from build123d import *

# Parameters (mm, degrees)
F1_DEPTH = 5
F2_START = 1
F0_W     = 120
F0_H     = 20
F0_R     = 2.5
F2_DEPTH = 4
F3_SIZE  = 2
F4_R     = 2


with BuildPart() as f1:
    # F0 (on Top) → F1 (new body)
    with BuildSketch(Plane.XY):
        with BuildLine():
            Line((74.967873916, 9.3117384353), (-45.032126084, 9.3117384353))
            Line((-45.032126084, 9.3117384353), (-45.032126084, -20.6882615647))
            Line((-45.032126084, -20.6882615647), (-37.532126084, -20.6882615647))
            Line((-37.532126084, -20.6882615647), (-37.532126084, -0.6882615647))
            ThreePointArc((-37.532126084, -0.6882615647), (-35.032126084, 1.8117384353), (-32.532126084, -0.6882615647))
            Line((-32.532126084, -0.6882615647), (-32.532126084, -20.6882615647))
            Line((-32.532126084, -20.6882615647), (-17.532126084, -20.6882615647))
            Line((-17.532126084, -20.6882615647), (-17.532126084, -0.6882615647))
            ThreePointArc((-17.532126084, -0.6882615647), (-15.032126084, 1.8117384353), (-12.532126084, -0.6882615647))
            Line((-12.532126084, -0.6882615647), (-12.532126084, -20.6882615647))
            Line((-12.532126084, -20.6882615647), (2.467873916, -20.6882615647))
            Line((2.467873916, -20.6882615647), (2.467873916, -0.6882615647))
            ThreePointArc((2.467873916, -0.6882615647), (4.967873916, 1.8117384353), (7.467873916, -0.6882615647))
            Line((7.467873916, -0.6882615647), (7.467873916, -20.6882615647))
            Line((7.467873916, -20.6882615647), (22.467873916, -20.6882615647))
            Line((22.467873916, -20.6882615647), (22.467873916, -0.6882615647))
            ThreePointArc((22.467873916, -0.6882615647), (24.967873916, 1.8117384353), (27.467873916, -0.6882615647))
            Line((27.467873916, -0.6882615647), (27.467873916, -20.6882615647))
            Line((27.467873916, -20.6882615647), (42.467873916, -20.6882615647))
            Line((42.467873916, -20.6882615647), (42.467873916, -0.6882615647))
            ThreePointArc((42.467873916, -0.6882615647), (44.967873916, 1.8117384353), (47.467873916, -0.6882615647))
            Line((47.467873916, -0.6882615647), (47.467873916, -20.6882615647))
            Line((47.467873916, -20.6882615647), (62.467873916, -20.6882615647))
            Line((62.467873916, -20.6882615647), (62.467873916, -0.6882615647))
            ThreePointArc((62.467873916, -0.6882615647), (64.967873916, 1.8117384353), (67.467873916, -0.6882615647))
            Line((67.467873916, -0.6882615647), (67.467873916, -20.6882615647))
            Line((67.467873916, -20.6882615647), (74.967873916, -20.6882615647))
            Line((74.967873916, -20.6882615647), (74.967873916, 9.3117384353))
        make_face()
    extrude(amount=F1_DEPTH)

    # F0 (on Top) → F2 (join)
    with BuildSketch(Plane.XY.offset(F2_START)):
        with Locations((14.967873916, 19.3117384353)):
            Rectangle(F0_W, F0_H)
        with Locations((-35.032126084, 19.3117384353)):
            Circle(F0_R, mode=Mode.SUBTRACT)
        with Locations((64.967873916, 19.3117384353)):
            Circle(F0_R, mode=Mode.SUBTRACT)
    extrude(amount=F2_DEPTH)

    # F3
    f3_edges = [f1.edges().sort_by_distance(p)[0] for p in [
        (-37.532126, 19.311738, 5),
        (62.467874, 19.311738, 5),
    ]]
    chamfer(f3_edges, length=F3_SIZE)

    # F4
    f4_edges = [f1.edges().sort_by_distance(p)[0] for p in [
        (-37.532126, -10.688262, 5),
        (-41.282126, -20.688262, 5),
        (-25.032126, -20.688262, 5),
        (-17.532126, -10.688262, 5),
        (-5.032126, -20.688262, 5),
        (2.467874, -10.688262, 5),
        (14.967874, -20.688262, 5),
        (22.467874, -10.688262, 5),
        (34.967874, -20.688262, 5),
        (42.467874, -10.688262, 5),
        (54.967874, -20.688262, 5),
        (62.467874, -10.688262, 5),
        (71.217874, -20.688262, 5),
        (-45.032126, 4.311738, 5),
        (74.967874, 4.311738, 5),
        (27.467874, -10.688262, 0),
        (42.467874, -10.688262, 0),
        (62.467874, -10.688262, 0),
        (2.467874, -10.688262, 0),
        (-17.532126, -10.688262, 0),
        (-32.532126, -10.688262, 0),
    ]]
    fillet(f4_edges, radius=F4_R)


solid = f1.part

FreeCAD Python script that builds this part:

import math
import FreeCAD as App
import Part
import Sketcher


def edges_at(feature, points):
    """Names of the edges that pass closest to the given points."""
    edges = feature.Shape.Edges
    near = lambda p: min(range(len(edges)), key=lambda i: edges[i].distToShape(Part.Vertex(*p))[0])
    return sorted({f"Edge{near(p) + 1}" for p in points})


def add_polygon(sketch, points):
    """Adds a closed chain of lines whose ends are joined by coincident constraints."""
    first, n = sketch.GeometryCount, len(points)
    for a, b in zip(points, points[1:] + points[:1]):
        sketch.addGeometry(Part.LineSegment(App.Vector(*a, 0), App.Vector(*b, 0)), False)
    for i in range(n):
        sketch.addConstraint(Sketcher.Constraint("Coincident", first + i, 2, first + (i + 1) % n, 1))

doc = App.newDocument("Part")
body = doc.addObject("PartDesign::Body", "Body")

sketch1 = doc.addObject("Sketcher::SketchObject", "Sketch")
body.addObject(sketch1)
sketch1.AttachmentSupport = (doc.XY_Plane, [""])
sketch1.MapMode = "FlatFace"
sketch1.addGeometry([
    Part.LineSegment(App.Vector(74.967874, 9.311738, 0), App.Vector(-45.032126, 9.311738, 0)),
    Part.LineSegment(App.Vector(-45.032126, 9.311738, 0), App.Vector(-45.032126, -20.688262, 0)),
    Part.LineSegment(App.Vector(-45.032126, -20.688262, 0), App.Vector(-37.532126, -20.688262, 0)),
    Part.LineSegment(App.Vector(-37.532126, -20.688262, 0), App.Vector(-37.532126, -0.688262, 0)),
    Part.ArcOfCircle(Part.Circle(App.Vector(-35.032126, -0.688262, 0), App.Vector(0, 0, 1), 2.5), math.radians(0), math.radians(180)),
    Part.LineSegment(App.Vector(-32.532126, -0.688262, 0), App.Vector(-32.532126, -20.688262, 0)),
    Part.LineSegment(App.Vector(-32.532126, -20.688262, 0), App.Vector(-17.532126, -20.688262, 0)),
    Part.LineSegment(App.Vector(-17.532126, -20.688262, 0), App.Vector(-17.532126, -0.688262, 0)),
    Part.ArcOfCircle(Part.Circle(App.Vector(-15.032126, -0.688262, 0), App.Vector(0, 0, 1), 2.5), math.radians(0), math.radians(180)),
    Part.LineSegment(App.Vector(-12.532126, -0.688262, 0), App.Vector(-12.532126, -20.688262, 0)),
    Part.LineSegment(App.Vector(-12.532126, -20.688262, 0), App.Vector(2.467874, -20.688262, 0)),
    Part.LineSegment(App.Vector(2.467874, -20.688262, 0), App.Vector(2.467874, -0.688262, 0)),
    Part.ArcOfCircle(Part.Circle(App.Vector(4.967874, -0.688262, 0), App.Vector(0, 0, 1), 2.5), math.radians(0), math.radians(180)),
    Part.LineSegment(App.Vector(7.467874, -0.688262, 0), App.Vector(7.467874, -20.688262, 0)),
    Part.LineSegment(App.Vector(7.467874, -20.688262, 0), App.Vector(22.467874, -20.688262, 0)),
    Part.LineSegment(App.Vector(22.467874, -20.688262, 0), App.Vector(22.467874, -0.688262, 0)),
    Part.ArcOfCircle(Part.Circle(App.Vector(24.967874, -0.688262, 0), App.Vector(0, 0, 1), 2.5), math.radians(0), math.radians(180)),
    Part.LineSegment(App.Vector(27.467874, -0.688262, 0), App.Vector(27.467874, -20.688262, 0)),
    Part.LineSegment(App.Vector(27.467874, -20.688262, 0), App.Vector(42.467874, -20.688262, 0)),
    Part.LineSegment(App.Vector(42.467874, -20.688262, 0), App.Vector(42.467874, -0.688262, 0)),
    Part.ArcOfCircle(Part.Circle(App.Vector(44.967874, -0.688262, 0), App.Vector(0, 0, 1), 2.5), math.radians(0), math.radians(180)),
    Part.LineSegment(App.Vector(47.467874, -0.688262, 0), App.Vector(47.467874, -20.688262, 0)),
    Part.LineSegment(App.Vector(47.467874, -20.688262, 0), App.Vector(62.467874, -20.688262, 0)),
    Part.LineSegment(App.Vector(62.467874, -20.688262, 0), App.Vector(62.467874, -0.688262, 0)),
    Part.ArcOfCircle(Part.Circle(App.Vector(64.967874, -0.688262, 0), App.Vector(0, 0, 1), 2.5), math.radians(0), math.radians(180)),
    Part.LineSegment(App.Vector(67.467874, -0.688262, 0), App.Vector(67.467874, -20.688262, 0)),
    Part.LineSegment(App.Vector(67.467874, -20.688262, 0), App.Vector(74.967874, -20.688262, 0)),
    Part.LineSegment(App.Vector(74.967874, -20.688262, 0), App.Vector(74.967874, 9.311738, 0)),
], False)
sketch1.addConstraint([
    Sketcher.Constraint("Coincident", 0, 2, 1, 1),
    Sketcher.Constraint("Coincident", 1, 2, 2, 1),
    Sketcher.Constraint("Coincident", 2, 2, 3, 1),
    Sketcher.Constraint("Tangent", 3, 2, 4, 2),
    Sketcher.Constraint("Tangent", 4, 1, 5, 1),
    Sketcher.Constraint("Coincident", 5, 2, 6, 1),
    Sketcher.Constraint("Coincident", 6, 2, 7, 1),
    Sketcher.Constraint("Tangent", 7, 2, 8, 2),
    Sketcher.Constraint("Tangent", 8, 1, 9, 1),
    Sketcher.Constraint("Coincident", 9, 2, 10, 1),
    Sketcher.Constraint("Coincident", 10, 2, 11, 1),
    Sketcher.Constraint("Tangent", 11, 2, 12, 2),
    Sketcher.Constraint("Tangent", 12, 1, 13, 1),
    Sketcher.Constraint("Coincident", 13, 2, 14, 1),
    Sketcher.Constraint("Coincident", 14, 2, 15, 1),
    Sketcher.Constraint("Tangent", 15, 2, 16, 2),
    Sketcher.Constraint("Tangent", 16, 1, 17, 1),
    Sketcher.Constraint("Coincident", 17, 2, 18, 1),
    Sketcher.Constraint("Coincident", 18, 2, 19, 1),
    Sketcher.Constraint("Tangent", 19, 2, 20, 2),
    Sketcher.Constraint("Tangent", 20, 1, 21, 1),
    Sketcher.Constraint("Coincident", 21, 2, 22, 1),
    Sketcher.Constraint("Coincident", 22, 2, 23, 1),
    Sketcher.Constraint("Tangent", 23, 2, 24, 2),
    Sketcher.Constraint("Tangent", 24, 1, 25, 1),
    Sketcher.Constraint("Coincident", 25, 2, 26, 1),
    Sketcher.Constraint("Coincident", 26, 2, 27, 1),
    Sketcher.Constraint("Coincident", 27, 2, 0, 1),
    Sketcher.Constraint("Horizontal", 0),
    Sketcher.Constraint("Vertical", 1),
    Sketcher.Constraint("Horizontal", 2),
    Sketcher.Constraint("Vertical", 3),
    Sketcher.Constraint("Vertical", 5),
    Sketcher.Constraint("Horizontal", 6),
    Sketcher.Constraint("Vertical", 7),
    Sketcher.Constraint("Vertical", 9),
    Sketcher.Constraint("Horizontal", 10),
    Sketcher.Constraint("Vertical", 11),
    Sketcher.Constraint("Vertical", 13),
    Sketcher.Constraint("Horizontal", 14),
    Sketcher.Constraint("Vertical", 15),
    Sketcher.Constraint("Vertical", 17),
    Sketcher.Constraint("Horizontal", 18),
    Sketcher.Constraint("Vertical", 19),
    Sketcher.Constraint("Vertical", 21),
    Sketcher.Constraint("Horizontal", 22),
    Sketcher.Constraint("Vertical", 23),
    Sketcher.Constraint("Vertical", 25),
    Sketcher.Constraint("Horizontal", 26),
    Sketcher.Constraint("Vertical", 27),
    Sketcher.Constraint("Equal", 4, 8),
    Sketcher.Constraint("Equal", 8, 12),
    Sketcher.Constraint("Equal", 12, 16),
    Sketcher.Constraint("Equal", 16, 20),
    Sketcher.Constraint("Equal", 20, 24),
    Sketcher.Constraint("Horizontal", 4, 3, 8, 3),
    Sketcher.Constraint("Horizontal", 8, 3, 12, 3),
    Sketcher.Constraint("Horizontal", 12, 3, 16, 3),
    Sketcher.Constraint("Horizontal", 16, 3, 20, 3),
    Sketcher.Constraint("Horizontal", 20, 3, 24, 3),
    Sketcher.Constraint("Horizontal", 2, 2, 5, 2),
    Sketcher.Constraint("Horizontal", 6, 2, 9, 2),
    Sketcher.Constraint("Horizontal", 10, 2, 13, 2),
    Sketcher.Constraint("Horizontal", 14, 2, 17, 2),
    Sketcher.Constraint("Horizontal", 18, 2, 21, 2),
    Sketcher.Constraint("Horizontal", 22, 2, 25, 2),
    Sketcher.Constraint("Equal", 6, 10),
    Sketcher.Constraint("Equal", 10, 14),
    Sketcher.Constraint("Equal", 14, 18),
    Sketcher.Constraint("Equal", 18, 22),
    Sketcher.Constraint("Equal", 2, 26),
    Sketcher.Constraint("Radius", 4, 2.5),
    Sketcher.Constraint("DistanceX", 0, 2, 0, 1, 120.0),
    Sketcher.Constraint("DistanceX", 6, 1, 6, 2, 15.0),
    Sketcher.Constraint("DistanceY", 1, 2, 1, 1, 30.0),
    Sketcher.Constraint("DistanceY", 3, 1, 3, 2, 20.0),
    Sketcher.Constraint("DistanceY", 4, 3, -1, 1, 0.688262),
    Sketcher.Constraint("DistanceX", 4, 3, -1, 1, 35.032126),
])
pad1 = doc.addObject("PartDesign::Pad", "Pad")
body.addObject(pad1)
pad1.Profile = sketch1
pad1.Length = 5

sketch2 = doc.addObject("Sketcher::SketchObject", "Sketch001")
body.addObject(sketch2)
sketch2.AttachmentSupport = (doc.XY_Plane, [""])
sketch2.MapMode = "FlatFace"
sketch2.AttachmentOffset = App.Placement(App.Vector(0, 0, 1), App.Rotation())
add_polygon(sketch2, [(-45.032126, 29.311738), (-45.032126, 9.311738), (74.967874, 9.311738), (74.967874, 29.311738)])
sketch2.addGeometry(Part.Circle(App.Vector(-35.032126, 19.311738, 0), App.Vector(0, 0, 1), 2.5), False)
sketch2.addGeometry(Part.Circle(App.Vector(64.967874, 19.311738, 0), App.Vector(0, 0, 1), 2.5), False)
sketch2.addConstraint([
    Sketcher.Constraint("Vertical", 0),
    Sketcher.Constraint("Horizontal", 1),
    Sketcher.Constraint("Vertical", 2),
    Sketcher.Constraint("Horizontal", 3),
    Sketcher.Constraint("Equal", 4, 5),
    Sketcher.Constraint("Horizontal", 4, 3, 5, 3),
    Sketcher.Constraint("Diameter", 4, 5.0),
    Sketcher.Constraint("DistanceX", 1, 1, 1, 2, 120.0),
    Sketcher.Constraint("DistanceY", 0, 2, 0, 1, 20.0),
    Sketcher.Constraint("DistanceX", 4, 3, 5, 3, 100.0),
    Sketcher.Constraint("DistanceX", 0, 2, 4, 3, 10.0),
    Sketcher.Constraint("DistanceY", 0, 2, 4, 3, 10.0),
    Sketcher.Constraint("DistanceY", -1, 1, 4, 3, 19.311738),
    Sketcher.Constraint("DistanceX", 4, 3, -1, 1, 35.032126),
])
pad2 = doc.addObject("PartDesign::Pad", "Pad001")
body.addObject(pad2)
pad2.Profile = sketch2
pad2.Length = 4
doc.recompute()

chamfer = doc.addObject("PartDesign::Chamfer", "Chamfer")
body.addObject(chamfer)
chamfer.Base = (pad2, edges_at(pad2, [(-37.532, 19.312, 5), (62.468, 19.312, 5)]))
chamfer.Size = 2
doc.recompute()

fillet = doc.addObject("PartDesign::Fillet", "Fillet")
body.addObject(fillet)
fillet.Base = (chamfer, edges_at(chamfer, [
    (-37.532, -10.688, 5),
    (-41.282, -20.688, 5),
    (-25.032, -20.688, 5),
    (-17.532, -10.688, 5),
    (-5.032, -20.688, 5),
    (2.468, -10.688, 5),
    (14.968, -20.688, 5),
    (22.468, -10.688, 5),
    (34.968, -20.688, 5),
    (42.468, -10.688, 5),
    (54.968, -20.688, 5),
    (62.468, -10.688, 5),
    (71.218, -20.688, 5),
    (-45.032, 4.312, 5),
    (74.968, 4.312, 5),
    (27.468, -10.688, 0),
    (42.468, -10.688, 0),
    (62.468, -10.688, 0),
    (2.468, -10.688, 0),
    (-17.532, -10.688, 0),
    (-32.532, -10.688, 0),
]))
fillet.Radius = 2

doc.recompute()
